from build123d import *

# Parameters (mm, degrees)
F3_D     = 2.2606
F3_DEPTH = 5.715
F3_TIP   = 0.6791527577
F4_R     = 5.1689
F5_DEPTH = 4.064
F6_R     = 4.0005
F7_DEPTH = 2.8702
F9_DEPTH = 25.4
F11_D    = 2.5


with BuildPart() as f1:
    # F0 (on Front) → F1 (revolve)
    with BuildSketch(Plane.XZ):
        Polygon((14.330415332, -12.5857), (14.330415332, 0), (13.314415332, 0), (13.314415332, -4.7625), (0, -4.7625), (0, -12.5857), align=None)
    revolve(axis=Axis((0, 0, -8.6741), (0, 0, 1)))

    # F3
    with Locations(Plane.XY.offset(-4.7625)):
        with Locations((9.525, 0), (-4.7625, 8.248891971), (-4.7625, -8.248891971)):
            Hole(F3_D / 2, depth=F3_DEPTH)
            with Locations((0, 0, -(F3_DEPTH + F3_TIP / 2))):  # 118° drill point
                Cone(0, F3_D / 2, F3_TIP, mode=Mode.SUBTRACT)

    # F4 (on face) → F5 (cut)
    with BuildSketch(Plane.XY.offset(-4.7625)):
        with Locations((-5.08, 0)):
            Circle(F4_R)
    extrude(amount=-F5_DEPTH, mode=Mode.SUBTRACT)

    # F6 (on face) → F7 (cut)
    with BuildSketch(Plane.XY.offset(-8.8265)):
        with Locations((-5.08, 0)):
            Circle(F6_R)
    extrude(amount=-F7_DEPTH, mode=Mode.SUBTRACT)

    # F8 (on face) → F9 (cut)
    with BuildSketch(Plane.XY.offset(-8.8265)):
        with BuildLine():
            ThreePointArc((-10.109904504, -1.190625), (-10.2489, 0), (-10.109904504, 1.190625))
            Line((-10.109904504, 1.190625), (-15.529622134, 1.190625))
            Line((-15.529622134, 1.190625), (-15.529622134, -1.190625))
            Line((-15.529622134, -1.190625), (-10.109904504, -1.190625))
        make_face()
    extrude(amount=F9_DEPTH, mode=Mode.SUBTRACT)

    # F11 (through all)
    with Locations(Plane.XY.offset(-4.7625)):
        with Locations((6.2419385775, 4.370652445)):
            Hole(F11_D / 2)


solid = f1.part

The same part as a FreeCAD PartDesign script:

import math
import FreeCAD as App
import Part
import Sketcher
from FreeCAD import Vector
Q = App.Units.Quantity

doc = App.newDocument("Part")
body = doc.addObject("PartDesign::Body", "Body")

sketch1 = body.newObject("Sketcher::SketchObject", "Sketch")
sketch1.AttachmentSupport = (doc.getObject("XZ_Plane"), [""])
sketch1.MapMode = "FlatFace"
sketch1.addGeometry([
    Part.LineSegment(Vector(14.330415, -12.5857, 0), Vector(14.330415, 0, 0)),
    Part.LineSegment(Vector(14.330415, 0, 0), Vector(13.314415, 0, 0)),
    Part.LineSegment(Vector(13.314415, 0, 0), Vector(13.314415, -4.7625, 0)),
    Part.LineSegment(Vector(13.314415, -4.7625, 0), Vector(0, -4.7625, 0)),
    Part.LineSegment(Vector(0, -4.7625, 0), Vector(0, -12.5857, 0)),
    Part.LineSegment(Vector(0, -12.5857, 0), Vector(14.330415, -12.5857, 0)),
], False)
sketch1.addConstraint([
    Sketcher.Constraint("Coincident", 0, 2, 1, 1),
    Sketcher.Constraint("Coincident", 1, 2, 2, 1),
    Sketcher.Constraint("Coincident", 2, 2, 3, 1),
    Sketcher.Constraint("Coincident", 3, 2, 4, 1),
    Sketcher.Constraint("Coincident", 4, 2, 5, 1),
    Sketcher.Constraint("Coincident", 5, 2, 0, 1),
    Sketcher.Constraint("Vertical", 0),
    Sketcher.Constraint("Horizontal", 1),
    Sketcher.Constraint("Vertical", 2),
    Sketcher.Constraint("Horizontal", 3),
    Sketcher.Constraint("Vertical", 4),
    Sketcher.Constraint("Horizontal", 5),
    Sketcher.Constraint("PointOnObject", 0, 2, -1),
    Sketcher.Constraint("PointOnObject", 3, 2, -2),
    Sketcher.Constraint("DistanceX", 1, 2, 1, 1, Q("0.04 in")),
    Sketcher.Constraint("DistanceY", 2, 2, 2, 1, Q("0.1875 in")),
    Sketcher.Constraint("DistanceY", 4, 2, 4, 1, Q("0.308 in")),
    Sketcher.Constraint("DistanceX", 3, 2, 3, 1, Q("13.314415 mm")),
])
revolution = body.newObject("PartDesign::Revolution", "Revolution")
revolution.Profile = sketch1
revolution.ReferenceAxis = (sketch1, ["V_Axis"])
revolution.Angle = 360

sketch2 = body.newObject("Sketcher::SketchObject", "Sketch001")
sketch2.AttachmentSupport = (doc.getObject("XY_Plane"), [""])
sketch2.MapMode = "FlatFace"
sketch2.AttachmentOffset = App.Placement(Vector(0, 0, -0.1875 * 25.4), App.Rotation())
sketch2.addGeometry([
    Part.Circle(Vector(9.525, 0, 0), Vector(0, 0, 1), 1.1303),
    Part.Circle(Vector(-4.7625, 8.248892, 0), Vector(0, 0, 1), 1.1303),
    Part.Circle(Vector(-4.7625, -8.248892, 0), Vector(0, 0, 1), 1.1303),
], False)
sketch2.addConstraint([
    Sketcher.Constraint("Equal", 0, 1),
    Sketcher.Constraint("Equal", 1, 2),
    Sketcher.Constraint("Symmetric", 1, 3, 2, 3, -1),
    Sketcher.Constraint("PointOnObject", 0, 3, -1),
    Sketcher.Constraint("Diameter", 0, Q("0.089 in")),
    Sketcher.Constraint("DistanceX", -1, 1, 0, 3, Q("0.375 in")),
    Sketcher.Constraint("DistanceX", 1, 3, -1, 1, Q("0.1875 in")),
    Sketcher.Constraint("DistanceY", -1, 1, 1, 3, Q("8.248892 mm")),
])
doc.recompute()
hole = body.newObject("PartDesign::Hole", "Hole")
hole.Profile = sketch2
hole.ThreadType = "None"
hole.Diameter = Q("0.089 in")
hole.DepthType = "Dimension"
hole.Depth = Q("0.225 in")
hole.DrillPoint = "Angled"
hole.DrillPointAngle = 118

sketch3 = body.newObject("Sketcher::SketchObject", "Sketch002")
sketch3.AttachmentSupport = (doc.getObject("XY_Plane"), [""])
sketch3.MapMode = "FlatFace"
sketch3.AttachmentOffset = App.Placement(Vector(0, 0, -0.1875 * 25.4), App.Rotation())
sketch3.addGeometry(Part.Circle(Vector(-5.08, 0, 0), Vector(0, 0, 1), 5.1689), False)
sketch3.addConstraint([
    Sketcher.Constraint("PointOnObject", 0, 3, -1),
    Sketcher.Constraint("Diameter", 0, Q("0.407 in")),
    Sketcher.Constraint("DistanceX", 0, 3, -1, 1, Q("0.2 in")),
])
pocket1 = body.newObject("PartDesign::Pocket", "Pocket")
pocket1.Profile = sketch3
pocket1.Length = Q("0.16 in")

sketch4 = body.newObject("Sketcher::SketchObject", "Sketch003")
sketch4.AttachmentSupport = (doc.getObject("XY_Plane"), [""])
sketch4.MapMode = "FlatFace"
sketch4.AttachmentOffset = App.Placement(Vector(0, 0, -0.3475 * 25.4), App.Rotation())
sketch4.addGeometry(Part.Circle(Vector(-5.08, 0, 0), Vector(0, 0, 1), 4.0005), False)
sketch4.addConstraint([
    Sketcher.Constraint("PointOnObject", 0, 3, -1),
    Sketcher.Constraint("Diameter", 0, Q("0.315 in")),
    Sketcher.Constraint("DistanceX", 0, 3, -1, 1, Q("0.2 in")),
])
pocket2 = body.newObject("PartDesign::Pocket", "Pocket001")
pocket2.Profile = sketch4
pocket2.Length = Q("0.113 in")

sketch5 = body.newObject("Sketcher::SketchObject", "Sketch004")
sketch5.AttachmentSupport = (doc.getObject("XY_Plane"), [""])
sketch5.MapMode = "FlatFace"
sketch5.AttachmentOffset = App.Placement(Vector(0, 0, -0.3475 * 25.4), App.Rotation())
sketch5.addGeometry([
    Part.ArcOfCircle(Part.Circle(Vector(-5.08, 0, 0), Vector(0, 0, 1), 5.1689), math.radians(166.682676), math.radians(193.317324)),
    Part.LineSegment(Vector(-10.109905, 1.190625, 0), Vector(-15.529622, 1.190625, 0)),
    Part.LineSegment(Vector(-15.529622, 1.190625, 0), Vector(-15.529622, -1.190625, 0)),
    Part.LineSegment(Vector(-15.529622, -1.190625, 0), Vector(-10.109905, -1.190625, 0)),
], False)
sketch5.addConstraint([
    Sketcher.Constraint("Coincident", 0, 1, 1, 1),
    Sketcher.Constraint("Coincident", 1, 2, 2, 1),
    Sketcher.Constraint("Coincident", 2, 2, 3, 1),
    Sketcher.Constraint("Coincident", 3, 2, 0, 2),
    Sketcher.Constraint("Horizontal", 1),
    Sketcher.Constraint("Vertical", 2),
    Sketcher.Constraint("Horizontal", 3),
    Sketcher.Constraint("Symmetric", 0, 1, 3, 2, -1),
    Sketcher.Constraint("DistanceX", 0, 3, -1, 1, Q("0.2 in")),
    Sketcher.Constraint("Radius", 0, Q("0.2035 in")),
    Sketcher.Constraint("DistanceY", 2, 2, 2, 1, Q("0.09375 in")),
    Sketcher.Constraint("DistanceX", 1, 2, 1, 1, Q("5.419718 mm")),
])
pocket3 = body.newObject("PartDesign::Pocket", "Pocket002")
pocket3.Profile = sketch5
pocket3.Length = Q("1 in")
pocket3.Reversed = True

sketch6 = body.newObject("Sketcher::SketchObject", "Sketch005")
sketch6.AttachmentSupport = (doc.getObject("XY_Plane"), [""])
sketch6.MapMode = "FlatFace"
sketch6.AttachmentOffset = App.Placement(Vector(0, 0, -0.1875 * 25.4), App.Rotation())
sketch6.addGeometry(Part.Circle(Vector(6.241939, 4.370652, 0), Vector(0, 0, 1), 1.25), False)
sketch6.addConstraint([
    Sketcher.Constraint("Diameter", 0, Q("2.5 mm")),
    Sketcher.Constraint("DistanceX", -1, 1, 0, 3, Q("6.241939 mm")),
    Sketcher.Constraint("DistanceY", -1, 1, 0, 3, Q("4.370652 mm")),
])
doc.recompute()
hole2 = body.newObject("PartDesign::Hole", "Hole001")
hole2.Profile = sketch6
hole2.ThreadType = "None"
hole2.Diameter = 2.5
hole2.DepthType = "ThroughAll"

doc.recompute()
